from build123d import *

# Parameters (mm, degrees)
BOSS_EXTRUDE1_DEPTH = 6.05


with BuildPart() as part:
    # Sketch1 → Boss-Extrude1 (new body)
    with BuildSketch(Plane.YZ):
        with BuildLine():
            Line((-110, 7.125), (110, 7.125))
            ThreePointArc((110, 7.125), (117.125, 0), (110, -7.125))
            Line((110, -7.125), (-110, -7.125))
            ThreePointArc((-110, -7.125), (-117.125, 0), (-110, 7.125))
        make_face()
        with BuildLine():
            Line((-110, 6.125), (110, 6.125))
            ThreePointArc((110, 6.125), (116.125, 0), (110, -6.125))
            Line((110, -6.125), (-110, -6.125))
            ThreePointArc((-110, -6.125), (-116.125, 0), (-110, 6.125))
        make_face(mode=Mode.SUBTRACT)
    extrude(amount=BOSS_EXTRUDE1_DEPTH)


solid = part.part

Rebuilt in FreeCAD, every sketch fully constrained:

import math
import FreeCAD as App
import Part
import Sketcher
Q = App.Units.Quantity

doc = App.newDocument("Part")
body = doc.addObject("PartDesign::Body", "Body")

sketch1 = body.newObject("Sketcher::SketchObject", "Sketch")
sketch1.AttachmentSupport = (doc.getObject("YZ_Plane"), [""])
sketch1.MapMode = "FlatFace"
sketch1.addGeometry(Part.LineSegment(App.Vector(110, 7.125, 0), App.Vector(-110, 7.125, 0)), False)
sketch1.addGeometry(Part.ArcOfCircle(Part.Circle(App.Vector(-110, 0, 0), App.Vector(0, 0, 1), 7.125), math.radians(90), math.radians(270)), False)
sketch1.addGeometry(Part.LineSegment(App.Vector(-110, -7.125, 0), App.Vector(110, -7.125, 0)), False)
sketch1.addGeometry(Part.ArcOfCircle(Part.Circle(App.Vector(110, 0, 0), App.Vector(0, 0, 1), 7.125), math.radians(-90), math.radians(90)), False)
sketch1.addGeometry(Part.LineSegment(App.Vector(-110, 6.125, 0), App.Vector(110, 6.125, 0)), False)
sketch1.addGeometry(Part.ArcOfCircle(Part.Circle(App.Vector(110, 0, 0), App.Vector(0, 0, 1), 6.125), math.radians(-90), math.radians(90)), False)
sketch1.addGeometry(Part.LineSegment(App.Vector(110, -6.125, 0), App.Vector(-110, -6.125, 0)), False)
sketch1.addGeometry(Part.ArcOfCircle(Part.Circle(App.Vector(-110, 0, 0), App.Vector(0, 0, 1), 6.125), math.radians(90), math.radians(270)), False)
sketch1.addConstraint(Sketcher.Constraint("Tangent", 0, 2, 1, 1))
sketch1.addConstraint(Sketcher.Constraint("Tangent", 1, 2, 2, 1))
sketch1.addConstraint(Sketcher.Constraint("Tangent", 2, 2, 3, 1))
sketch1.addConstraint(Sketcher.Constraint("Tangent", 3, 2, 0, 1))
sketch1.addConstraint(Sketcher.Constraint("Tangent", 4, 2, 5, 2))
sketch1.addConstraint(Sketcher.Constraint("Tangent", 5, 1, 6, 1))
sketch1.addConstraint(Sketcher.Constraint("Tangent", 6, 2, 7, 2))
sketch1.addConstraint(Sketcher.Constraint("Tangent", 7, 1, 4, 1))
sketch1.addConstraint(Sketcher.Constraint("Horizontal", 0))
sketch1.addConstraint(Sketcher.Constraint("Horizontal", 2))
sketch1.addConstraint(Sketcher.Constraint("Horizontal", 4))
sketch1.addConstraint(Sketcher.Constraint("Horizontal", 6))
sketch1.addConstraint(Sketcher.Constraint("Coincident", 5, 3, 3, 3))
sketch1.addConstraint(Sketcher.Constraint("Symmetric", 1, 3, 3, 3, -1, 1))
sketch1.addConstraint(Sketcher.Constraint("Vertical", 7, 3, 0, 2))
sketch1.addConstraint(Sketcher.Constraint("DistanceX", 0, 2, 0, 1, Q("220 mm")))
sketch1.addConstraint(Sketcher.Constraint("Radius", 1, Q("7.125 mm")))
sketch1.addConstraint(Sketcher.Constraint("Radius", 5, Q("6.125 mm")))
pad1 = body.newObject("PartDesign::Pad", "Pad")
pad1.Profile = sketch1
pad1.Length = 6.05

doc.recompute()
